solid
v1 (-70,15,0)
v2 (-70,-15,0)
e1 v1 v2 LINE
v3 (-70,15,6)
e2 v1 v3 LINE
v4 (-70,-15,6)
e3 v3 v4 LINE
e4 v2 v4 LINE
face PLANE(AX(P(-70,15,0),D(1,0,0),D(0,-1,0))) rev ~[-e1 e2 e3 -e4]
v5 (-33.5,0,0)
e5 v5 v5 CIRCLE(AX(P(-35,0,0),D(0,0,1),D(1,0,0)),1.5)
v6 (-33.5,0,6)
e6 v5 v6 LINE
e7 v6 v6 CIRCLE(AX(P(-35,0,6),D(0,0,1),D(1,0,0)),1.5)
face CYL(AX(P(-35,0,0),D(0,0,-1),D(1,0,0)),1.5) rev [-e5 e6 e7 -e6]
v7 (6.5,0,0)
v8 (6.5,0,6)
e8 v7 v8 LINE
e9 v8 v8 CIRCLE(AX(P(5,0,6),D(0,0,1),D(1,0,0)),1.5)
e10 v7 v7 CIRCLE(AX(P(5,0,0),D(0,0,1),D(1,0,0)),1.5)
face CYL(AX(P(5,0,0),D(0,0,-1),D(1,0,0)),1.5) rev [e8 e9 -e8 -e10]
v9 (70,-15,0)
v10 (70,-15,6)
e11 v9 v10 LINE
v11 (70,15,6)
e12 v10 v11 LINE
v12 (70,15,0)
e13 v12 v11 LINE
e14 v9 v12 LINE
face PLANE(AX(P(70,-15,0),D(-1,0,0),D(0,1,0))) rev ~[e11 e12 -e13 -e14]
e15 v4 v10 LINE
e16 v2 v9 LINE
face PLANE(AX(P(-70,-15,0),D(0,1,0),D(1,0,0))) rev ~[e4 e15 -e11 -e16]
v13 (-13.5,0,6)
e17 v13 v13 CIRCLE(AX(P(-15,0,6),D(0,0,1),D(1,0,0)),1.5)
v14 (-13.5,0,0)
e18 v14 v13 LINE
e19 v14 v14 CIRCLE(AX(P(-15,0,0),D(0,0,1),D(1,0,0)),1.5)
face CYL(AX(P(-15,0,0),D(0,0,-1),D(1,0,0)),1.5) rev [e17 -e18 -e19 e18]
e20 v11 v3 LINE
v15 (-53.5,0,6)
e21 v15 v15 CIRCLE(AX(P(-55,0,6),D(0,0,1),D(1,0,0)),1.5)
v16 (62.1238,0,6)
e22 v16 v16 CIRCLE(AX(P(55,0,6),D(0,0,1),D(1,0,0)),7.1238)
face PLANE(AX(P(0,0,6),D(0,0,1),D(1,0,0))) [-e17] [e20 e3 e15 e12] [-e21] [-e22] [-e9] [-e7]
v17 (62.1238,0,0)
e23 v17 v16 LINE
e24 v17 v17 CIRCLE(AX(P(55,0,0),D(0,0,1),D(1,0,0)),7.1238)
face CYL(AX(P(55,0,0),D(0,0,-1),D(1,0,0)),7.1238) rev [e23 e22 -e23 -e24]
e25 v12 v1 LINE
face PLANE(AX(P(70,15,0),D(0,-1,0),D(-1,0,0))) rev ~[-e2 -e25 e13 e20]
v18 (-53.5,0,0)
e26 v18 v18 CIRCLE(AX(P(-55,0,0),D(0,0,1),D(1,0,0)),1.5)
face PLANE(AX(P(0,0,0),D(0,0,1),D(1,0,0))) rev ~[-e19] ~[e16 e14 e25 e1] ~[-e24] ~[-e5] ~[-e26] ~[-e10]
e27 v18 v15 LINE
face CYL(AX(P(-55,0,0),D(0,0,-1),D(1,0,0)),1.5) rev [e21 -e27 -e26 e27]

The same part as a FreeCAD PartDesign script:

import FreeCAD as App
import Part
import Sketcher
from FreeCAD import Vector

doc = App.newDocument("Part")
body = doc.addObject("PartDesign::Body", "Body")

# Sketch on XY plane
sketch1 = body.newObject("Sketcher::SketchObject", "Sketch")
sketch1.AttachmentSupport = (doc.getObject("XY_Plane"), [""])
sketch1.MapMode = "FlatFace"
sketch1.addGeometry([
    Part.LineSegment(Vector(-70, 15, 0), Vector(-70, -15, 0)),  # 0
    Part.LineSegment(Vector(-70, -15, 0), Vector(70, -15, 0)),  # 1
    Part.LineSegment(Vector(70, -15, 0), Vector(70, 15, 0)),  # 2
    Part.LineSegment(Vector(70, 15, 0), Vector(-70, 15, 0)),  # 3
    Part.Circle(Vector(-55, 0, 0), Vector(0, 0, 1), 1.5),  # 4
    Part.Circle(Vector(-35, 0, 0), Vector(0, 0, 1), 1.5),  # 5
    Part.Circle(Vector(-15, 0, 0), Vector(0, 0, 1), 1.5),  # 6
    Part.Circle(Vector(5, 0, 0), Vector(0, 0, 1), 1.5),  # 7
    Part.Circle(Vector(55, 0, 0), Vector(0, 0, 1), 7.1),  # 8
], False)
sketch1.addConstraint([
    Sketcher.Constraint("Coincident", 0, 2, 1, 1),
    Sketcher.Constraint("Coincident", 1, 2, 2, 1),
    Sketcher.Constraint("Coincident", 2, 2, 3, 1),
    Sketcher.Constraint("Coincident", 3, 2, 0, 1),
    Sketcher.Constraint("Vertical", 0),
    Sketcher.Constraint("Horizontal", 1),
    Sketcher.Constraint("Vertical", 2),
    Sketcher.Constraint("Horizontal", 3),
    Sketcher.Constraint("Equal", 4, 5),
    Sketcher.Constraint("Equal", 5, 6),
    Sketcher.Constraint("Equal", 6, 7),
    Sketcher.Constraint("Symmetric", 4, 3, 8, 3, -1, 1),
    Sketcher.Constraint("Symmetric", 0, 2, 2, 2, -1, 1),
    Sketcher.Constraint("PointOnObject", 4, 3, -1),
    Sketcher.Constraint("PointOnObject", 5, 3, -1),
    Sketcher.Constraint("PointOnObject", 6, 3, -1),
    Sketcher.Constraint("PointOnObject", 7, 3, -1),
    Sketcher.Constraint("Diameter", 4, 3.0),
    Sketcher.Constraint("DistanceX", 1, 1, 1, 2, 140.0),
    Sketcher.Constraint("DistanceY", 0, 2, 0, 1, 30.0),
    Sketcher.Constraint("DistanceX", 6, 3, -1, 1, 15.0),
    Sketcher.Constraint("DistanceX", 4, 3, 5, 3, 20.0),
    Sketcher.Constraint("DistanceX", 5, 3, 6, 3, 20.0),
    Sketcher.Constraint("DistanceX", 6, 3, 7, 3, 20.0),
    Sketcher.Constraint("Diameter", 8, 14.2476),
])
pad1 = body.newObject("PartDesign::Pad", "Pad")
pad1.Profile = sketch1
pad1.Length = 6

doc.recompute()
